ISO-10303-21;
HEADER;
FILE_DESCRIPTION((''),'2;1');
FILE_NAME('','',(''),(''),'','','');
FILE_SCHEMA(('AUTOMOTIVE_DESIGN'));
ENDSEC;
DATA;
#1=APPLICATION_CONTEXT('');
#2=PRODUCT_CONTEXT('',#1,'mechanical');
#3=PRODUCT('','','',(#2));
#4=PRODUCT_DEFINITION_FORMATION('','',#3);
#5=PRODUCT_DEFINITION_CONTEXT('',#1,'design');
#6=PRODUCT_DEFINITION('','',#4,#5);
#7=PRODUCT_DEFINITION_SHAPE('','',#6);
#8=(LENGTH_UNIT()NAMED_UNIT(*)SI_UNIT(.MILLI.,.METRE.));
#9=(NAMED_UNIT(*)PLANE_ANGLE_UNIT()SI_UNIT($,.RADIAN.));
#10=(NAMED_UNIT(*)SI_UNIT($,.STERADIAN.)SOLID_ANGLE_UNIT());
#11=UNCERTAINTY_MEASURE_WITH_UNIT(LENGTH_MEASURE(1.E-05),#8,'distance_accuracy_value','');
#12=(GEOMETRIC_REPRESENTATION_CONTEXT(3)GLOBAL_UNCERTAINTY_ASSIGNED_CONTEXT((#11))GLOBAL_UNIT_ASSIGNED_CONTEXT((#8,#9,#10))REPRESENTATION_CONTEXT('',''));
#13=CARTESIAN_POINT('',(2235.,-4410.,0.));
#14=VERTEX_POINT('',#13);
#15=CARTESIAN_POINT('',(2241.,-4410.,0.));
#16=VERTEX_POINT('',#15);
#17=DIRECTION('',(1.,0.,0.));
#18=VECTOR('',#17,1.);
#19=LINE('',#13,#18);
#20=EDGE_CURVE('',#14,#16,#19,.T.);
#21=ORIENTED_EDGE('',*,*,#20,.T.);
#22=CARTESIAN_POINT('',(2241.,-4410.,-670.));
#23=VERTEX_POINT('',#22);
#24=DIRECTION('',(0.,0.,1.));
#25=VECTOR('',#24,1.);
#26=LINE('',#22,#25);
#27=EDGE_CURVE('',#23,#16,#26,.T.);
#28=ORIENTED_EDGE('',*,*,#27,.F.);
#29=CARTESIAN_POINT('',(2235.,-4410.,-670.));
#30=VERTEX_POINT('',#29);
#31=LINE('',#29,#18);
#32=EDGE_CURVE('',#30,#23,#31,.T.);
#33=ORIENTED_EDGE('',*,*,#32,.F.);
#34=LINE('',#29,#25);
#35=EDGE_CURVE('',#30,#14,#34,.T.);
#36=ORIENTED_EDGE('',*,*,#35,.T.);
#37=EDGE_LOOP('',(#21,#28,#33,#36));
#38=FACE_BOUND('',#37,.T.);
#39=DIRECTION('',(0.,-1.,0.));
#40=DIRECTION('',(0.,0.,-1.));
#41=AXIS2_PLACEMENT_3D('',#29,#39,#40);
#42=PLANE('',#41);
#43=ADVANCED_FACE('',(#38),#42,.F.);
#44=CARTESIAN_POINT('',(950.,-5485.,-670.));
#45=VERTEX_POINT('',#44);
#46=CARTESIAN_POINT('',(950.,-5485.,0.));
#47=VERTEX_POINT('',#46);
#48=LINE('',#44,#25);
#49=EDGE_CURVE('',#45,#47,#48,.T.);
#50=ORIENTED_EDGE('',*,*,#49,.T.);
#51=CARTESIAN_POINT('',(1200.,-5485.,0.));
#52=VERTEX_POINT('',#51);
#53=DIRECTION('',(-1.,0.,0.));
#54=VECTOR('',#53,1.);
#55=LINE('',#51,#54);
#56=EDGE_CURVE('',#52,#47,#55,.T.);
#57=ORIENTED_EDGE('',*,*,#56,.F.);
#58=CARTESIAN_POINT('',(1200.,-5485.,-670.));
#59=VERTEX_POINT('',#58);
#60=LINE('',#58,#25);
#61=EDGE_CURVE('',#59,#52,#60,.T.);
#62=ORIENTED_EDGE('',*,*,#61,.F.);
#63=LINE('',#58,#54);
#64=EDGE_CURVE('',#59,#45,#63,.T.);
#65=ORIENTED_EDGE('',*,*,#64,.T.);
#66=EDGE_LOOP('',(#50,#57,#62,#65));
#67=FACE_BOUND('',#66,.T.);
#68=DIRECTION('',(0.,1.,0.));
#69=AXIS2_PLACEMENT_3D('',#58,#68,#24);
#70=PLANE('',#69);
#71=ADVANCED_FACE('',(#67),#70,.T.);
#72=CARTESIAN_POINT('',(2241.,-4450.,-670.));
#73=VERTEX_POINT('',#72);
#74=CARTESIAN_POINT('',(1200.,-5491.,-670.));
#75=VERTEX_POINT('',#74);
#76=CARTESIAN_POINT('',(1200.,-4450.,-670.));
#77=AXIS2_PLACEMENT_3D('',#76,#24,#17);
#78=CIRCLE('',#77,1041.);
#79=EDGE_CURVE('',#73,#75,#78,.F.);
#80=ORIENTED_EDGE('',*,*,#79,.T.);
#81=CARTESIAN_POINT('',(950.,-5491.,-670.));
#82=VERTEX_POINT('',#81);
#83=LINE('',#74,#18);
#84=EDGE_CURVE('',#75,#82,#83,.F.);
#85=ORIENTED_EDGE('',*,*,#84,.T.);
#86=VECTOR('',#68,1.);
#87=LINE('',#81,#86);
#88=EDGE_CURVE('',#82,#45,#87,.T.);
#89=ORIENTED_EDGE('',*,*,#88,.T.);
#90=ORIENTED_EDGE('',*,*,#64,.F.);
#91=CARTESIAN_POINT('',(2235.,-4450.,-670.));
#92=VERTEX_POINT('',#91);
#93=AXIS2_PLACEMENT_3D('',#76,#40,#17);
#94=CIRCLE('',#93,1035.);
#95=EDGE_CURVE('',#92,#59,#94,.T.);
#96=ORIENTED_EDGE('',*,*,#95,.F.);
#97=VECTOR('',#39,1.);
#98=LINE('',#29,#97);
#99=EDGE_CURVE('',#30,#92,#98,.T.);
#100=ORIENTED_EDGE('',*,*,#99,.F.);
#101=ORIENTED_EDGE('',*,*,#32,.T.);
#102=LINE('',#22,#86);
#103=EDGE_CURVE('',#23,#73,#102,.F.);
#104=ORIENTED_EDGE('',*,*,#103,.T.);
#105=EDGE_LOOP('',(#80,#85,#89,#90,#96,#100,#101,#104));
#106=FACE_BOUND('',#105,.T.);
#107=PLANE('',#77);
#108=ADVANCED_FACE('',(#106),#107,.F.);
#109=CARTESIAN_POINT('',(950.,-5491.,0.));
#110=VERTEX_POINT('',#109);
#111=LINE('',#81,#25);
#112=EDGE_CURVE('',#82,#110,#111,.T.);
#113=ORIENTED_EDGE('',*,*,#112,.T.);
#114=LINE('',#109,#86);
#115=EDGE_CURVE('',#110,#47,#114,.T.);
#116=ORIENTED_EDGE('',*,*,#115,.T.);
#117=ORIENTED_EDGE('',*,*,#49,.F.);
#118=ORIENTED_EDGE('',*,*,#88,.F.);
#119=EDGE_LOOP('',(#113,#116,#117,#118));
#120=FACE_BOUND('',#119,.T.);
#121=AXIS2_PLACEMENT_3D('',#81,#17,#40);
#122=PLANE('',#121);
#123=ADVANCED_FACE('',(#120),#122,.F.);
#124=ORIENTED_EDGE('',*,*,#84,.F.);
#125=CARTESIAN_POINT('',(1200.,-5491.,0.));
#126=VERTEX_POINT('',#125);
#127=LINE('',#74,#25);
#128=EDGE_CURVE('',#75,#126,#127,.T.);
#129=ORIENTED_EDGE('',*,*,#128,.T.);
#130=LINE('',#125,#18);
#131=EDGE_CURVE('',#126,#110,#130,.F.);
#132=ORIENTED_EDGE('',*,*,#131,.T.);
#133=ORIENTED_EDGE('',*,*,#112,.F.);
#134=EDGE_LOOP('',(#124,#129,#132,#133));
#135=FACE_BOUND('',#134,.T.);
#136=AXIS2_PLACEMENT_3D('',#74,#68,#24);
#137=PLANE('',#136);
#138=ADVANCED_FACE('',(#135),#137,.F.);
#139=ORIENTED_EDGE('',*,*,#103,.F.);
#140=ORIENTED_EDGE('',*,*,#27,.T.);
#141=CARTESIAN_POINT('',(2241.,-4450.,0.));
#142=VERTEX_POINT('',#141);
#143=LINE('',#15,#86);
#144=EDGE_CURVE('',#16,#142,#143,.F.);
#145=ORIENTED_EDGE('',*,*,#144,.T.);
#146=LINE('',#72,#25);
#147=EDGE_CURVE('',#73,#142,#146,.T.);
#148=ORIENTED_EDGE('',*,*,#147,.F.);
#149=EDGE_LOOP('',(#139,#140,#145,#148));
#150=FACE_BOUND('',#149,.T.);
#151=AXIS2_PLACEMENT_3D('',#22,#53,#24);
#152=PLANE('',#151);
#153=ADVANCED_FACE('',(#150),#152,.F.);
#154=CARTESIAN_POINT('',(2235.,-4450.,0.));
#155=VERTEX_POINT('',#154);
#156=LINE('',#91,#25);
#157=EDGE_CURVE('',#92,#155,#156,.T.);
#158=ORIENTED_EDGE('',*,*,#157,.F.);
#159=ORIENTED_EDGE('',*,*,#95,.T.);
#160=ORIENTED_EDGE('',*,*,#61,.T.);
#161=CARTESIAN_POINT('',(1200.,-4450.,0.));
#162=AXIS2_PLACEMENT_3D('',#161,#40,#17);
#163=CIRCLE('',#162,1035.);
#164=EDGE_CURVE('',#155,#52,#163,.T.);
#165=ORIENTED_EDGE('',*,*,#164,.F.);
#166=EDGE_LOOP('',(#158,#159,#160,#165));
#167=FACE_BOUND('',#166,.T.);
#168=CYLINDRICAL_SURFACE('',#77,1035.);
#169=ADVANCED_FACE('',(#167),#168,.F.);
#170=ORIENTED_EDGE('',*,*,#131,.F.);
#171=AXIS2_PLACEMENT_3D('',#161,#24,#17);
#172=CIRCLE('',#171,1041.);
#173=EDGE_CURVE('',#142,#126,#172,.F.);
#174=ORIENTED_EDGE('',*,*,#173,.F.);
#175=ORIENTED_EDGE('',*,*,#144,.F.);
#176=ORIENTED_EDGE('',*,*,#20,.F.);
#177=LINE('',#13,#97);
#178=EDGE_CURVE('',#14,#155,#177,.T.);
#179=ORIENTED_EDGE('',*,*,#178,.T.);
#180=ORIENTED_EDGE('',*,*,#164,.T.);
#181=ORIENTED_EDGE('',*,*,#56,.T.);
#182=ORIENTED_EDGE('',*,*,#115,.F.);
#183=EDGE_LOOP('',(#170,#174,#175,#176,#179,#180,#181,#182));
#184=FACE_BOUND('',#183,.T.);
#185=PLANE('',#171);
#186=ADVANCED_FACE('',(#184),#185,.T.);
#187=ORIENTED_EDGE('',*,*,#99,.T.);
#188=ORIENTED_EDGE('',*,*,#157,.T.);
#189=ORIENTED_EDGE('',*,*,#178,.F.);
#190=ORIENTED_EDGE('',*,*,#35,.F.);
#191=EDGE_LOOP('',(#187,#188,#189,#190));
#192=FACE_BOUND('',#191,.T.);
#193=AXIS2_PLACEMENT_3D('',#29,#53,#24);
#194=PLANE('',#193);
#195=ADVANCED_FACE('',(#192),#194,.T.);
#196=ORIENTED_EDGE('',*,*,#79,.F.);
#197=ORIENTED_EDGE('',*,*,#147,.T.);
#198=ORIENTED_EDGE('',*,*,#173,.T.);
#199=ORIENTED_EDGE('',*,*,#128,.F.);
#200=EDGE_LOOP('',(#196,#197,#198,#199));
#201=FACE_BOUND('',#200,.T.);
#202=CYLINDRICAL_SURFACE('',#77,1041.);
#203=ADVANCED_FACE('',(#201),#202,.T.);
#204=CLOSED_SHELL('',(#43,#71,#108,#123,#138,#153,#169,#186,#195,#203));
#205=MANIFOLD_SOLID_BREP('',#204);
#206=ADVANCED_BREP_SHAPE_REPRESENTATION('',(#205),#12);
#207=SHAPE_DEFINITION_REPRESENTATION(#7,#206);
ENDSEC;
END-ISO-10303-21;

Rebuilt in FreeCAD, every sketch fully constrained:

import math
import FreeCAD as App
import Part
import Sketcher

V = App.Vector
Q = App.Units.Quantity

doc = App.newDocument("Part")
body = doc.addObject("PartDesign::Body", "Body")

# Sketch on XY plane
sketch1 = doc.addObject("Sketcher::SketchObject", "Sketch")
body.addObject(sketch1)
sketch1.AttachmentSupport = (doc.XY_Plane, [""])
sketch1.MapMode = "FlatFace"
sketch1.addGeometry([
    Part.LineSegment(V(2235, -4410, 0), V(2235, -4450, 0)),  # 0
    Part.ArcOfCircle(Part.Circle(V(1200, -4450, 0), V(0, 0, 1), 1035), math.radians(-90), math.radians(0)),  # 1
    Part.LineSegment(V(1200, -5485, 0), V(950, -5485, 0)),  # 2
    Part.LineSegment(V(950, -5485, 0), V(950, -5491, 0)),  # 3
    Part.LineSegment(V(950, -5491, 0), V(1200, -5491, 0)),  # 4
    Part.ArcOfCircle(Part.Circle(V(1200, -4450, 0), V(0, 0, 1), 1041), math.radians(-90), math.radians(0)),  # 5
    Part.LineSegment(V(2241, -4450, 0), V(2241, -4410, 0)),  # 6
    Part.LineSegment(V(2241, -4410, 0), V(2235, -4410, 0)),  # 7
], False)
sketch1.addConstraint([
    Sketcher.Constraint("Tangent", 0, 2, 1, 2),
    Sketcher.Constraint("Tangent", 1, 1, 2, 1),
    Sketcher.Constraint("Coincident", 2, 2, 3, 1),
    Sketcher.Constraint("Coincident", 3, 2, 4, 1),
    Sketcher.Constraint("Tangent", 4, 2, 5, 1),
    Sketcher.Constraint("Tangent", 5, 2, 6, 1),
    Sketcher.Constraint("Coincident", 6, 2, 7, 1),
    Sketcher.Constraint("Coincident", 7, 2, 0, 1),
    Sketcher.Constraint("Vertical", 0),
    Sketcher.Constraint("Horizontal", 2),
    Sketcher.Constraint("Vertical", 3),
    Sketcher.Constraint("Horizontal", 4),
    Sketcher.Constraint("Vertical", 6),
    Sketcher.Constraint("Horizontal", 7),
    Sketcher.Constraint("Coincident", 5, 3, 1, 3),
    Sketcher.Constraint("Radius", 1, Q("1035 mm")),
    Sketcher.Constraint("Radius", 5, Q("1041 mm")),
    Sketcher.Constraint("DistanceX", 2, 2, 2, 1, Q("250 mm")),
    Sketcher.Constraint("DistanceY", 0, 2, 0, 1, Q("40 mm")),
    Sketcher.Constraint("DistanceX", -1, 1, 1, 3, Q("1200 mm")),
    Sketcher.Constraint("DistanceY", 1, 3, -1, 1, Q("4450 mm")),
])
pad1 = doc.addObject("PartDesign::Pad", "Pad")
body.addObject(pad1)
pad1.Profile = sketch1
pad1.Length = 670
pad1.Reversed = True

doc.recompute()
